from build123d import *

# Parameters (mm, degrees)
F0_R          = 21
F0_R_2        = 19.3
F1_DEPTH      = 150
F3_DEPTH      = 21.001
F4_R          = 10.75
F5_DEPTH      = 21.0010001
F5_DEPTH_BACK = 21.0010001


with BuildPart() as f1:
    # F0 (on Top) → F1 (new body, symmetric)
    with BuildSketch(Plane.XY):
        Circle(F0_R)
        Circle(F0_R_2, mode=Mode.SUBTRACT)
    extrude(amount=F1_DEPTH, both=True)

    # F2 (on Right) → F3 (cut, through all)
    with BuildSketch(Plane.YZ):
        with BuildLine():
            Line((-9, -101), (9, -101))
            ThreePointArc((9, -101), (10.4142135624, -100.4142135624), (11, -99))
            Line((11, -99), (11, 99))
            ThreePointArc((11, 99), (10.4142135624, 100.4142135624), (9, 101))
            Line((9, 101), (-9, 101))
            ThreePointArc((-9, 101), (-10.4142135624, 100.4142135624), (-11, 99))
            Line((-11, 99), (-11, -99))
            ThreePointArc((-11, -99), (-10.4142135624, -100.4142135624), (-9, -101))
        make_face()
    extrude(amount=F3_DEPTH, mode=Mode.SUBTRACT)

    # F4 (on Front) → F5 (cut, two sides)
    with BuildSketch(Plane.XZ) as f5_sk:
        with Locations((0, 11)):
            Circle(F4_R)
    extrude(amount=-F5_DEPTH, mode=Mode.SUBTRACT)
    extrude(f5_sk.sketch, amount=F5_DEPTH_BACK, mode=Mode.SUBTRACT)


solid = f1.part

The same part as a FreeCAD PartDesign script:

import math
import FreeCAD as App
import Part
import Sketcher
from FreeCAD import Vector
Q = App.Units.Quantity

doc = App.newDocument("Part")
params = doc.addObject("Spreadsheet::Sheet", "Params")
for row, (alias, value) in enumerate([
    ("sketch1_diameter", "42 mm"),
    ("sketch1_diameter2", "38.6 mm"),
    ("pad1_length", "300 mm"),
    ("sketch2_radius", "2 mm"),
    ("sketch2_width", "18 mm"),
    ("sketch2_height", "198 mm"),
    ("sketch3_diameter", "21.5 mm"),
], start=1):
    params.set(f"A{row}", alias)
    params.set(f"B{row}", "=" + value)
    params.setAlias(f"B{row}", alias)

body = doc.addObject("PartDesign::Body", "Body")

# Sketch on XY plane
sketch1 = doc.addObject("Sketcher::SketchObject", "Sketch")
body.addObject(sketch1)
sketch1.AttachmentSupport = (doc.XY_Plane, [""])
sketch1.MapMode = "FlatFace"
sketch1.addGeometry([
    Part.Circle(Vector(0, 0, 0), Vector(0, 0, 1), 21),
    Part.Circle(Vector(0, 0, 0), Vector(0, 0, 1), 19.3),
], False)
sketch1.addConstraint([
    Sketcher.Constraint("Coincident", 0, 3, -1, 1),
    Sketcher.Constraint("Coincident", 1, 3, -1, 1),
    Sketcher.Constraint("Diameter", 0, Q("42 mm")),
    Sketcher.Constraint("Diameter", 1, Q("38.6 mm")),
])
sketch1.setExpression("Constraints[2]", "Params.sketch1_diameter")
sketch1.setExpression("Constraints[3]", "Params.sketch1_diameter2")
pad1 = doc.addObject("PartDesign::Pad", "Pad")
body.addObject(pad1)
pad1.Profile = sketch1
pad1.setExpression("Length", "Params.pad1_length")
pad1.Midplane = True

# Sketch on YZ plane
sketch2 = doc.addObject("Sketcher::SketchObject", "Sketch001")
body.addObject(sketch2)
sketch2.AttachmentSupport = (doc.YZ_Plane, [""])
sketch2.MapMode = "FlatFace"
sketch2.addGeometry([
    Part.LineSegment(Vector(-9, -101, 0), Vector(9, -101, 0)),  # 0
    Part.ArcOfCircle(Part.Circle(Vector(9, -99, 0), Vector(0, 0, 1), 2), math.radians(-90), math.radians(0)),  # 1
    Part.LineSegment(Vector(11, -99, 0), Vector(11, 99, 0)),  # 2
    Part.ArcOfCircle(Part.Circle(Vector(9, 99, 0), Vector(0, 0, 1), 2), math.radians(0), math.radians(90)),  # 3
    Part.LineSegment(Vector(9, 101, 0), Vector(-9, 101, 0)),  # 4
    Part.ArcOfCircle(Part.Circle(Vector(-9, 99, 0), Vector(0, 0, 1), 2), math.radians(90), math.radians(180)),  # 5
    Part.LineSegment(Vector(-11, 99, 0), Vector(-11, -99, 0)),  # 6
    Part.ArcOfCircle(Part.Circle(Vector(-9, -99, 0), Vector(0, 0, 1), 2), math.radians(180), math.radians(270)),  # 7
], False)
sketch2.addConstraint([
    Sketcher.Constraint("Tangent", 0, 2, 1, 1),
    Sketcher.Constraint("Tangent", 1, 2, 2, 1),
    Sketcher.Constraint("Tangent", 2, 2, 3, 1),
    Sketcher.Constraint("Tangent", 3, 2, 4, 1),
    Sketcher.Constraint("Tangent", 4, 2, 5, 1),
    Sketcher.Constraint("Tangent", 5, 2, 6, 1),
    Sketcher.Constraint("Tangent", 6, 2, 7, 1),
    Sketcher.Constraint("Tangent", 7, 2, 0, 1),
    Sketcher.Constraint("Horizontal", 0),
    Sketcher.Constraint("Vertical", 2),
    Sketcher.Constraint("Horizontal", 4),
    Sketcher.Constraint("Vertical", 6),
    Sketcher.Constraint("Equal", 1, 3),
    Sketcher.Constraint("Equal", 3, 5),
    Sketcher.Constraint("Equal", 5, 7),
    Sketcher.Constraint("Symmetric", 1, 3, 5, 3, -1, 1),
    Sketcher.Constraint("Radius", 1, Q("2 mm")),
    Sketcher.Constraint("DistanceX", 0, 1, 0, 2, Q("18 mm")),
    Sketcher.Constraint("DistanceY", 2, 1, 2, 2, Q("198 mm")),
])
sketch2.setExpression("Constraints[16]", "Params.sketch2_radius")
sketch2.setExpression("Constraints[17]", "Params.sketch2_width")
sketch2.setExpression("Constraints[18]", "Params.sketch2_height")
pocket1 = doc.addObject("PartDesign::Pocket", "Pocket")
body.addObject(pocket1)
pocket1.Profile = sketch2
pocket1.Type = "ThroughAll"
pocket1.Reversed = True

# Sketch on XZ plane
sketch3 = doc.addObject("Sketcher::SketchObject", "Sketch002")
body.addObject(sketch3)
sketch3.AttachmentSupport = (doc.XZ_Plane, [""])
sketch3.MapMode = "FlatFace"
sketch3.addGeometry(Part.Circle(Vector(0, 11, 0), Vector(0, 0, 1), 10.75), False)
sketch3.addConstraint([
    Sketcher.Constraint("PointOnObject", 0, 3, -2),
    Sketcher.Constraint("Diameter", 0, Q("21.5 mm")),
    Sketcher.Constraint("DistanceY", -1, 1, 0, 3, Q("11 mm")),
])
sketch3.setExpression("Constraints[1]", "Params.sketch3_diameter")
pocket2 = doc.addObject("PartDesign::Pocket", "Pocket001")
body.addObject(pocket2)
pocket2.Profile = sketch3
pocket2.Type = "ThroughAll"
pocket2.Midplane = True

doc.recompute()
